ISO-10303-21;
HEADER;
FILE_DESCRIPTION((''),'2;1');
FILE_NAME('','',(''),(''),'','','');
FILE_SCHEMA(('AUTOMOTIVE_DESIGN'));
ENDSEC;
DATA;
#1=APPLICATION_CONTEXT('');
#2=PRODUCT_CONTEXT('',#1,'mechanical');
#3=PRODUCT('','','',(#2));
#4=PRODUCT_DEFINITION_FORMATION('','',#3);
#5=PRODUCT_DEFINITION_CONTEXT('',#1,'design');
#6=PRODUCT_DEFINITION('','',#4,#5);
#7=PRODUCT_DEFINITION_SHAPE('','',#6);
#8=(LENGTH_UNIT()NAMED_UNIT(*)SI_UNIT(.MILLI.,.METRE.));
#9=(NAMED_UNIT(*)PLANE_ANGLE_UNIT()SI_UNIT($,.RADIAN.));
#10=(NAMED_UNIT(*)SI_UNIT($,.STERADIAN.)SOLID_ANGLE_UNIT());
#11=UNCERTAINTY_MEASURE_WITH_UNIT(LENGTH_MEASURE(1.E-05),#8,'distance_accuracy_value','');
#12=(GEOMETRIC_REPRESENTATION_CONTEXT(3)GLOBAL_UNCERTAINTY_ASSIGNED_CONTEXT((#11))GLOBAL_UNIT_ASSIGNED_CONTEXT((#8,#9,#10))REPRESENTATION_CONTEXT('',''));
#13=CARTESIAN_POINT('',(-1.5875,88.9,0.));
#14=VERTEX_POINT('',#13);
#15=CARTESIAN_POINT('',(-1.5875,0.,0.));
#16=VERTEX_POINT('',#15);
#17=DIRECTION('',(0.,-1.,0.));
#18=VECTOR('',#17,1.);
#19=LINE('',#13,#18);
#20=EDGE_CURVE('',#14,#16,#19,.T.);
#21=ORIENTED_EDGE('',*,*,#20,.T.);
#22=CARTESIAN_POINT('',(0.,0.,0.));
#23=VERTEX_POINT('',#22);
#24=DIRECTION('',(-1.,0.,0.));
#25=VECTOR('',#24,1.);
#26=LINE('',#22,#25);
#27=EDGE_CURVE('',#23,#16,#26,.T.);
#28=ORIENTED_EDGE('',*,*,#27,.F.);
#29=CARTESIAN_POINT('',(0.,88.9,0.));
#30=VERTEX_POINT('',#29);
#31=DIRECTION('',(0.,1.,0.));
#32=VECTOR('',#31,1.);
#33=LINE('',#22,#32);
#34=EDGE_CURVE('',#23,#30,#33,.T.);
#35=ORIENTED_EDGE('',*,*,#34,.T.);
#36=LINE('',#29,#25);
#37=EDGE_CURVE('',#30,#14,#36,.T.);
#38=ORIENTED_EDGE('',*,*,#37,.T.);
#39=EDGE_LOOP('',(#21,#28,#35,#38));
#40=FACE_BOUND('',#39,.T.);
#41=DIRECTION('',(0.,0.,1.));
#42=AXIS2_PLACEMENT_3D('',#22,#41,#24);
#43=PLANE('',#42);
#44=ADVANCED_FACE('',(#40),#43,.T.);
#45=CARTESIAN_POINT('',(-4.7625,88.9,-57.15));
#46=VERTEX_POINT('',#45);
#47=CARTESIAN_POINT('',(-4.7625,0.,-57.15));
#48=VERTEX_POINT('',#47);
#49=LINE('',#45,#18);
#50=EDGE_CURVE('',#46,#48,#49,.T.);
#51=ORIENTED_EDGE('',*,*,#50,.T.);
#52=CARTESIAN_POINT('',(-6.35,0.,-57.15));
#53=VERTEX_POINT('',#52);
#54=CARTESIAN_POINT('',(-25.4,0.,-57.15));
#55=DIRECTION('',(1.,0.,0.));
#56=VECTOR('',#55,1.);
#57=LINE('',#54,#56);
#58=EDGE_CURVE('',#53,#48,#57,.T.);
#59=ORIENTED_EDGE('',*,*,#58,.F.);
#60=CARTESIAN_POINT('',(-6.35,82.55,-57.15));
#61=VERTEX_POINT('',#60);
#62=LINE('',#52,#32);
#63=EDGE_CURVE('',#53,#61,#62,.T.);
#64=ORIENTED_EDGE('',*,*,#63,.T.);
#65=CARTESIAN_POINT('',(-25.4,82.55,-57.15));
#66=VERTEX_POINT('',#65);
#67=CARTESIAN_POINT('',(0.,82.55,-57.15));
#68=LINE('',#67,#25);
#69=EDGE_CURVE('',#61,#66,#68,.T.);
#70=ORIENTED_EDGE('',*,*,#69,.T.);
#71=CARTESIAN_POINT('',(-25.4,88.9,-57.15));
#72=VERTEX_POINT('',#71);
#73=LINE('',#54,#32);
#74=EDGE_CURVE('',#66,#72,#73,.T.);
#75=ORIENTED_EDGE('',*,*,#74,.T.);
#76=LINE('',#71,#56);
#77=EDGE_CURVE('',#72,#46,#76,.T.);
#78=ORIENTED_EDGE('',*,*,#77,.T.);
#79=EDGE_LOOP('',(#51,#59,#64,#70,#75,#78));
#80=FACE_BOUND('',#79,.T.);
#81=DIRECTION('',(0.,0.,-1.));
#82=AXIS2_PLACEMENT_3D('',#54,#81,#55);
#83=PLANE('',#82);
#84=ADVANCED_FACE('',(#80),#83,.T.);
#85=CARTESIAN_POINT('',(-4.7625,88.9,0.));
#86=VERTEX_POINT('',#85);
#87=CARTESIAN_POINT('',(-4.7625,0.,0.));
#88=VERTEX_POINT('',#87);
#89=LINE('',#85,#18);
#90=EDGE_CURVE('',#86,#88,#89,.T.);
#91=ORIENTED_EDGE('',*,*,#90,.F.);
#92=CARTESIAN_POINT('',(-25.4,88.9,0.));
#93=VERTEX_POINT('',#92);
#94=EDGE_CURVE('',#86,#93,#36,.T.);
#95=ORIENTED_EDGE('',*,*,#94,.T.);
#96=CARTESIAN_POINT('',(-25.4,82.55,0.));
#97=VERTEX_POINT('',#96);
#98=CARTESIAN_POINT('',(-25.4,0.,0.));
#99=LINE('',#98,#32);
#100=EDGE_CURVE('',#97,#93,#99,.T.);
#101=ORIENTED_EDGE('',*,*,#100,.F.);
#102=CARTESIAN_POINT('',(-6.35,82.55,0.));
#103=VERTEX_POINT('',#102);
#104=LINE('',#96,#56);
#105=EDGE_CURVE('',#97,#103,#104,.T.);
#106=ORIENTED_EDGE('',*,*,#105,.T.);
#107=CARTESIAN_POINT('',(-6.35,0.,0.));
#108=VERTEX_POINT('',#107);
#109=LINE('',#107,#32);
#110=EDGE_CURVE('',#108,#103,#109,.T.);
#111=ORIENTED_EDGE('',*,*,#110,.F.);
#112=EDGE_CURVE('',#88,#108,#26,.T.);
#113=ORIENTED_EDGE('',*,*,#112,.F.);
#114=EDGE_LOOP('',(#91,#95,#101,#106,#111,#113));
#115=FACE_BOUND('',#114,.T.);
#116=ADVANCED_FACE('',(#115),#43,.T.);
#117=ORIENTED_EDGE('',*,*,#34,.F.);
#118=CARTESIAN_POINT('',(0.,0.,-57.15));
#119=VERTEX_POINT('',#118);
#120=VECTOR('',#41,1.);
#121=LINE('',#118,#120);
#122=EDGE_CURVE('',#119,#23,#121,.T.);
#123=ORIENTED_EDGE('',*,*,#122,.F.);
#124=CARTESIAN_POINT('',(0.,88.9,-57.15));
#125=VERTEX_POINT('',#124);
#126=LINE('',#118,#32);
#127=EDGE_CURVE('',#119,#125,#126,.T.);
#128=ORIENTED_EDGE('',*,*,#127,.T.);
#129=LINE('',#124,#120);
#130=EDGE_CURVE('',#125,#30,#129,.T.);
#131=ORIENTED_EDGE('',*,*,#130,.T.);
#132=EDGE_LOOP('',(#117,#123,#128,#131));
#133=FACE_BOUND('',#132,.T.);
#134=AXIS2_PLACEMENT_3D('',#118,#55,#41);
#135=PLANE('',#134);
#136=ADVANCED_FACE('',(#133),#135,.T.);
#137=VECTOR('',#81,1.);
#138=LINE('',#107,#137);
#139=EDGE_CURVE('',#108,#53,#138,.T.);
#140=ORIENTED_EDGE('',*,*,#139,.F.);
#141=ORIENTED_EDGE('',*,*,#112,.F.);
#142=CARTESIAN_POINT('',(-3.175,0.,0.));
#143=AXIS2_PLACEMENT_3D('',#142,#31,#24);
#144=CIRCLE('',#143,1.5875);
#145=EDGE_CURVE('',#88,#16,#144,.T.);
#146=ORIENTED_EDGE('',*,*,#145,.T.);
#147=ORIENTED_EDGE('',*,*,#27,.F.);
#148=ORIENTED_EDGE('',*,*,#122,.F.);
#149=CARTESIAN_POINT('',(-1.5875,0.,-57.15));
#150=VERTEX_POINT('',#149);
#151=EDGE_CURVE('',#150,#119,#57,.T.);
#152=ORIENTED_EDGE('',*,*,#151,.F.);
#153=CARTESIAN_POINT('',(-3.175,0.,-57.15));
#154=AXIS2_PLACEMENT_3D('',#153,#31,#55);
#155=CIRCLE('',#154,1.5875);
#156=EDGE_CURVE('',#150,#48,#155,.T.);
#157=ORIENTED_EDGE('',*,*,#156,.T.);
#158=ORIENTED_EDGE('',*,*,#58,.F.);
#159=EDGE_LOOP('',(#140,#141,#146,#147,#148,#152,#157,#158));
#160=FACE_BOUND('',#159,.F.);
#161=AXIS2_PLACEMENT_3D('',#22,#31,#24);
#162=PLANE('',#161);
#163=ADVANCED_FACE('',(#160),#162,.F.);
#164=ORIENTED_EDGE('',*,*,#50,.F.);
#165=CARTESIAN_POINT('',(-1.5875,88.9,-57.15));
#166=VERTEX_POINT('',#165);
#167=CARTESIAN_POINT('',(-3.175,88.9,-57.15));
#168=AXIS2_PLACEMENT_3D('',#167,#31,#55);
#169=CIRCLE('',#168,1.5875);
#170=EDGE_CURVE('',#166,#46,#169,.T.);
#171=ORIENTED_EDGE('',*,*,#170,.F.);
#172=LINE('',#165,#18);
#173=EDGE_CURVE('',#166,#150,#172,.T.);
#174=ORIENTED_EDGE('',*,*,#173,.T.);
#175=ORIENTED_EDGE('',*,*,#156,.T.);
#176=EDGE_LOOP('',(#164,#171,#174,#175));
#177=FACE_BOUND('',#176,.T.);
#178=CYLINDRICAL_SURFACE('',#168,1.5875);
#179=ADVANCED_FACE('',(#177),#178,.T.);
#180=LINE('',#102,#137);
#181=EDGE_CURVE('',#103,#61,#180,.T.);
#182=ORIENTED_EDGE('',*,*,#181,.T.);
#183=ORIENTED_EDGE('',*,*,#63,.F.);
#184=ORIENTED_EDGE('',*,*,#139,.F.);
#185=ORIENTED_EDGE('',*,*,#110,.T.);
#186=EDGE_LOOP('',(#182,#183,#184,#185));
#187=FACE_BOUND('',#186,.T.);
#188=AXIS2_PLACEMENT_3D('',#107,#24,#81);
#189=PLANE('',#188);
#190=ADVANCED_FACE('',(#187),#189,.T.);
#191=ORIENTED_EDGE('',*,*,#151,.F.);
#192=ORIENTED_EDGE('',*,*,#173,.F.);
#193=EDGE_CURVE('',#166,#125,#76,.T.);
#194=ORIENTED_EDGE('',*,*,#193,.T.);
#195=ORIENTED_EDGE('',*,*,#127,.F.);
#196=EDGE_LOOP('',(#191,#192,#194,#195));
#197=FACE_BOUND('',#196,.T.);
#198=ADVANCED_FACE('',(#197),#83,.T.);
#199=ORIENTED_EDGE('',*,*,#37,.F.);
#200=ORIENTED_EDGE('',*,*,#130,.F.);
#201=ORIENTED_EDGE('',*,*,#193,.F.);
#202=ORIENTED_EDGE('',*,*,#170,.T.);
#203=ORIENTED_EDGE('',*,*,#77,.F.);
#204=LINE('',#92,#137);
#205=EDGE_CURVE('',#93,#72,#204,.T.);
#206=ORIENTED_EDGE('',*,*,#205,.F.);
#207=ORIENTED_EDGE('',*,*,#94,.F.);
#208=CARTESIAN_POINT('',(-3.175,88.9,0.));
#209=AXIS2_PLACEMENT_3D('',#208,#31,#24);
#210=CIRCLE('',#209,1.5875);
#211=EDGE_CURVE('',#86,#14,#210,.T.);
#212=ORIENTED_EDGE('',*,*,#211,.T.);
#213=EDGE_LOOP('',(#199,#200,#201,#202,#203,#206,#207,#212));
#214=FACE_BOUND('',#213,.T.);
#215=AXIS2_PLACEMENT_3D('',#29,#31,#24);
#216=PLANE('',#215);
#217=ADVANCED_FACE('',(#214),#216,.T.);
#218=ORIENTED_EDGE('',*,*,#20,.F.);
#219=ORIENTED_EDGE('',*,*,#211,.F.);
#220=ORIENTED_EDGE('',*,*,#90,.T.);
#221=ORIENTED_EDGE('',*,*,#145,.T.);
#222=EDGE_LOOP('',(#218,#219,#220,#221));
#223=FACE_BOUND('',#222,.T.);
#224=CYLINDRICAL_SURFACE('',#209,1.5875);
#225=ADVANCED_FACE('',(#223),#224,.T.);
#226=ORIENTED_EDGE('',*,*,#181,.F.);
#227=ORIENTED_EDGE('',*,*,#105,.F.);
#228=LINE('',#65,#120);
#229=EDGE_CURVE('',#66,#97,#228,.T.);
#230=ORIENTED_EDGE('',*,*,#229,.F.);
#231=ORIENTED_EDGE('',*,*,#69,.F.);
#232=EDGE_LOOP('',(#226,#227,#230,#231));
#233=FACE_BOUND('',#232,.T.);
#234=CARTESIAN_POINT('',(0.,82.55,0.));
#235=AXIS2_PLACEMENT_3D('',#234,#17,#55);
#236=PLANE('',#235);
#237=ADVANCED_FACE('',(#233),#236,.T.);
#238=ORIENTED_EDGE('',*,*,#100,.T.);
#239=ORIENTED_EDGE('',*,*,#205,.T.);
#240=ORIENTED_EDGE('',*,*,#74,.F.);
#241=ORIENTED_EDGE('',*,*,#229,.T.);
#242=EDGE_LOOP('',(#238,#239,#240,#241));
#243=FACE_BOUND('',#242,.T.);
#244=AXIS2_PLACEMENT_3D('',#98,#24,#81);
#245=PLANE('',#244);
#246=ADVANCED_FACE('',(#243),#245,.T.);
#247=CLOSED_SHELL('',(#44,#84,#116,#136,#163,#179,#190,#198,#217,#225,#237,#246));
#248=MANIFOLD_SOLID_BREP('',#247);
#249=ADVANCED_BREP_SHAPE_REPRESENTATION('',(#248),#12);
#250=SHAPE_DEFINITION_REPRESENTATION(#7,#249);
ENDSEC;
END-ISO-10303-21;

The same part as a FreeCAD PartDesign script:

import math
import FreeCAD as App
import Part
import Sketcher
from FreeCAD import Vector
Q = App.Units.Quantity


def add_polygon(sketch, points):
    """Adds a closed chain of lines whose ends are joined by coincident constraints."""
    first, n = sketch.GeometryCount, len(points)
    for a, b in zip(points, points[1:] + points[:1]):
        sketch.addGeometry(Part.LineSegment(App.Vector(*a, 0), App.Vector(*b, 0)), False)
    for i in range(n):
        sketch.addConstraint(Sketcher.Constraint("Coincident", first + i, 2, first + (i + 1) % n, 1))

doc = App.newDocument("Part")
params = doc.addObject("Spreadsheet::Sheet", "Params")
for row, (alias, value) in enumerate([
    ("sketch1_width", "1 in"),
    ("sketch1_height", "2.25 in"),
    ("pad1_length", "3.5 in"),
    ("sketch2_height", "2.25 in"),
    ("pocket1_length", "3.25 in"),
    ("sketch3_radius", "0.0625 in"),
    ("pad2_length", "3.5 in"),
], start=1):
    params.set(f"A{row}", alias)
    params.set(f"B{row}", "=" + value)
    params.setAlias(f"B{row}", alias)

body = doc.addObject("PartDesign::Body", "Body")

sketch1 = body.newObject("Sketcher::SketchObject", "Sketch")
sketch1.AttachmentSupport = (doc.getObject("XZ_Plane"), [""])
sketch1.MapMode = "FlatFace"
add_polygon(sketch1, [(-25, 0), (0, 0), (0, -57), (-25, -57)])
sketch1.addConstraint([
    Sketcher.Constraint("Horizontal", 0),
    Sketcher.Constraint("Vertical", 1),
    Sketcher.Constraint("Horizontal", 2),
    Sketcher.Constraint("Vertical", 3),
    Sketcher.Constraint("Coincident", 0, 2, -1, 1),
    Sketcher.Constraint("DistanceX", 0, 1, 0, 2, Q("1 in")),
    Sketcher.Constraint("DistanceY", 1, 2, 1, 1, Q("2.25 in")),
])
sketch1.setExpression("Constraints[9]", "Params.sketch1_width")
sketch1.setExpression("Constraints[10]", "Params.sketch1_height")
pad1 = body.newObject("PartDesign::Pad", "Pad")
pad1.Profile = sketch1
pad1.setExpression("Length", "Params.pad1_length")
pad1.Reversed = True

sketch2 = body.newObject("Sketcher::SketchObject", "Sketch001")
sketch2.AttachmentSupport = (doc.getObject("XZ_Plane"), [""])
sketch2.MapMode = "FlatFace"
add_polygon(sketch2, [(-6, 0), (-25, 0), (-25, -57), (-6, -57)])
sketch2.addConstraint([
    Sketcher.Constraint("Horizontal", 0),
    Sketcher.Constraint("Vertical", 1),
    Sketcher.Constraint("Horizontal", 2),
    Sketcher.Constraint("Vertical", 3),
    Sketcher.Constraint("PointOnObject", 0, 2, -1),
    Sketcher.Constraint("DistanceX", 2, 2, -1, 1, Q("0.25 in")),
    Sketcher.Constraint("DistanceX", 0, 2, -1, 1, Q("1 in")),
    Sketcher.Constraint("DistanceY", 1, 2, 1, 1, Q("2.25 in")),
])
sketch2.setExpression("Constraints[11]", "Params.sketch2_height")
pocket1 = body.newObject("PartDesign::Pocket", "Pocket")
pocket1.Profile = sketch2
pocket1.setExpression("Length", "Params.pocket1_length")

sketch3 = body.newObject("Sketcher::SketchObject", "Sketch002")
sketch3.AttachmentSupport = (doc.getObject("XZ_Plane"), [""])
sketch3.MapMode = "FlatFace"
sketch3.AttachmentOffset = App.Placement(Vector(0, 0, -3.5 * 25.4), App.Rotation())
sketch3.addGeometry([
    Part.LineSegment(Vector(-4.8, -57.1, 0), Vector(-1.6, -57.1, 0)),
    Part.ArcOfCircle(Part.Circle(Vector(-3.2, -57.1, 0), Vector(0, 0, 1), 1.6), math.radians(180), math.radians(360)),
    Part.ArcOfCircle(Part.Circle(Vector(-3.2, 0, 0), Vector(0, 0, 1), 1.6), math.radians(0), math.radians(180)),
    Part.LineSegment(Vector(-1.6, 0, 0), Vector(-4.8, 0, 0)),
], False)
sketch3.addConstraint([
    Sketcher.Constraint("Coincident", 0, 1, 1, 1),
    Sketcher.Constraint("Coincident", 1, 2, 0, 2),
    Sketcher.Constraint("Coincident", 2, 1, 3, 1),
    Sketcher.Constraint("Coincident", 3, 2, 2, 2),
    Sketcher.Constraint("Horizontal", 0),
    Sketcher.Constraint("Horizontal", 3),
    Sketcher.Constraint("Equal", 1, 2),
    Sketcher.Constraint("PointOnObject", 2, 3, -1),
    Sketcher.Constraint("PointOnObject", 2, 1, -1),
    Sketcher.Constraint("Horizontal", 1, 3, 0, 1),
    Sketcher.Constraint("Vertical", 1, 3, 2, 3),
    Sketcher.Constraint("Radius", 1, Q("0.0625 in")),
    Sketcher.Constraint("DistanceX", 1, 3, -1, 1, Q("0.125 in")),
    Sketcher.Constraint("DistanceY", 1, 3, -1, 1, Q("2.25 in")),
])
sketch3.setExpression("Constraints[11]", "Params.sketch3_radius")
pad2 = body.newObject("PartDesign::Pad", "Pad001")
pad2.Profile = sketch3
pad2.setExpression("Length", "Params.pad2_length")

doc.recompute()
